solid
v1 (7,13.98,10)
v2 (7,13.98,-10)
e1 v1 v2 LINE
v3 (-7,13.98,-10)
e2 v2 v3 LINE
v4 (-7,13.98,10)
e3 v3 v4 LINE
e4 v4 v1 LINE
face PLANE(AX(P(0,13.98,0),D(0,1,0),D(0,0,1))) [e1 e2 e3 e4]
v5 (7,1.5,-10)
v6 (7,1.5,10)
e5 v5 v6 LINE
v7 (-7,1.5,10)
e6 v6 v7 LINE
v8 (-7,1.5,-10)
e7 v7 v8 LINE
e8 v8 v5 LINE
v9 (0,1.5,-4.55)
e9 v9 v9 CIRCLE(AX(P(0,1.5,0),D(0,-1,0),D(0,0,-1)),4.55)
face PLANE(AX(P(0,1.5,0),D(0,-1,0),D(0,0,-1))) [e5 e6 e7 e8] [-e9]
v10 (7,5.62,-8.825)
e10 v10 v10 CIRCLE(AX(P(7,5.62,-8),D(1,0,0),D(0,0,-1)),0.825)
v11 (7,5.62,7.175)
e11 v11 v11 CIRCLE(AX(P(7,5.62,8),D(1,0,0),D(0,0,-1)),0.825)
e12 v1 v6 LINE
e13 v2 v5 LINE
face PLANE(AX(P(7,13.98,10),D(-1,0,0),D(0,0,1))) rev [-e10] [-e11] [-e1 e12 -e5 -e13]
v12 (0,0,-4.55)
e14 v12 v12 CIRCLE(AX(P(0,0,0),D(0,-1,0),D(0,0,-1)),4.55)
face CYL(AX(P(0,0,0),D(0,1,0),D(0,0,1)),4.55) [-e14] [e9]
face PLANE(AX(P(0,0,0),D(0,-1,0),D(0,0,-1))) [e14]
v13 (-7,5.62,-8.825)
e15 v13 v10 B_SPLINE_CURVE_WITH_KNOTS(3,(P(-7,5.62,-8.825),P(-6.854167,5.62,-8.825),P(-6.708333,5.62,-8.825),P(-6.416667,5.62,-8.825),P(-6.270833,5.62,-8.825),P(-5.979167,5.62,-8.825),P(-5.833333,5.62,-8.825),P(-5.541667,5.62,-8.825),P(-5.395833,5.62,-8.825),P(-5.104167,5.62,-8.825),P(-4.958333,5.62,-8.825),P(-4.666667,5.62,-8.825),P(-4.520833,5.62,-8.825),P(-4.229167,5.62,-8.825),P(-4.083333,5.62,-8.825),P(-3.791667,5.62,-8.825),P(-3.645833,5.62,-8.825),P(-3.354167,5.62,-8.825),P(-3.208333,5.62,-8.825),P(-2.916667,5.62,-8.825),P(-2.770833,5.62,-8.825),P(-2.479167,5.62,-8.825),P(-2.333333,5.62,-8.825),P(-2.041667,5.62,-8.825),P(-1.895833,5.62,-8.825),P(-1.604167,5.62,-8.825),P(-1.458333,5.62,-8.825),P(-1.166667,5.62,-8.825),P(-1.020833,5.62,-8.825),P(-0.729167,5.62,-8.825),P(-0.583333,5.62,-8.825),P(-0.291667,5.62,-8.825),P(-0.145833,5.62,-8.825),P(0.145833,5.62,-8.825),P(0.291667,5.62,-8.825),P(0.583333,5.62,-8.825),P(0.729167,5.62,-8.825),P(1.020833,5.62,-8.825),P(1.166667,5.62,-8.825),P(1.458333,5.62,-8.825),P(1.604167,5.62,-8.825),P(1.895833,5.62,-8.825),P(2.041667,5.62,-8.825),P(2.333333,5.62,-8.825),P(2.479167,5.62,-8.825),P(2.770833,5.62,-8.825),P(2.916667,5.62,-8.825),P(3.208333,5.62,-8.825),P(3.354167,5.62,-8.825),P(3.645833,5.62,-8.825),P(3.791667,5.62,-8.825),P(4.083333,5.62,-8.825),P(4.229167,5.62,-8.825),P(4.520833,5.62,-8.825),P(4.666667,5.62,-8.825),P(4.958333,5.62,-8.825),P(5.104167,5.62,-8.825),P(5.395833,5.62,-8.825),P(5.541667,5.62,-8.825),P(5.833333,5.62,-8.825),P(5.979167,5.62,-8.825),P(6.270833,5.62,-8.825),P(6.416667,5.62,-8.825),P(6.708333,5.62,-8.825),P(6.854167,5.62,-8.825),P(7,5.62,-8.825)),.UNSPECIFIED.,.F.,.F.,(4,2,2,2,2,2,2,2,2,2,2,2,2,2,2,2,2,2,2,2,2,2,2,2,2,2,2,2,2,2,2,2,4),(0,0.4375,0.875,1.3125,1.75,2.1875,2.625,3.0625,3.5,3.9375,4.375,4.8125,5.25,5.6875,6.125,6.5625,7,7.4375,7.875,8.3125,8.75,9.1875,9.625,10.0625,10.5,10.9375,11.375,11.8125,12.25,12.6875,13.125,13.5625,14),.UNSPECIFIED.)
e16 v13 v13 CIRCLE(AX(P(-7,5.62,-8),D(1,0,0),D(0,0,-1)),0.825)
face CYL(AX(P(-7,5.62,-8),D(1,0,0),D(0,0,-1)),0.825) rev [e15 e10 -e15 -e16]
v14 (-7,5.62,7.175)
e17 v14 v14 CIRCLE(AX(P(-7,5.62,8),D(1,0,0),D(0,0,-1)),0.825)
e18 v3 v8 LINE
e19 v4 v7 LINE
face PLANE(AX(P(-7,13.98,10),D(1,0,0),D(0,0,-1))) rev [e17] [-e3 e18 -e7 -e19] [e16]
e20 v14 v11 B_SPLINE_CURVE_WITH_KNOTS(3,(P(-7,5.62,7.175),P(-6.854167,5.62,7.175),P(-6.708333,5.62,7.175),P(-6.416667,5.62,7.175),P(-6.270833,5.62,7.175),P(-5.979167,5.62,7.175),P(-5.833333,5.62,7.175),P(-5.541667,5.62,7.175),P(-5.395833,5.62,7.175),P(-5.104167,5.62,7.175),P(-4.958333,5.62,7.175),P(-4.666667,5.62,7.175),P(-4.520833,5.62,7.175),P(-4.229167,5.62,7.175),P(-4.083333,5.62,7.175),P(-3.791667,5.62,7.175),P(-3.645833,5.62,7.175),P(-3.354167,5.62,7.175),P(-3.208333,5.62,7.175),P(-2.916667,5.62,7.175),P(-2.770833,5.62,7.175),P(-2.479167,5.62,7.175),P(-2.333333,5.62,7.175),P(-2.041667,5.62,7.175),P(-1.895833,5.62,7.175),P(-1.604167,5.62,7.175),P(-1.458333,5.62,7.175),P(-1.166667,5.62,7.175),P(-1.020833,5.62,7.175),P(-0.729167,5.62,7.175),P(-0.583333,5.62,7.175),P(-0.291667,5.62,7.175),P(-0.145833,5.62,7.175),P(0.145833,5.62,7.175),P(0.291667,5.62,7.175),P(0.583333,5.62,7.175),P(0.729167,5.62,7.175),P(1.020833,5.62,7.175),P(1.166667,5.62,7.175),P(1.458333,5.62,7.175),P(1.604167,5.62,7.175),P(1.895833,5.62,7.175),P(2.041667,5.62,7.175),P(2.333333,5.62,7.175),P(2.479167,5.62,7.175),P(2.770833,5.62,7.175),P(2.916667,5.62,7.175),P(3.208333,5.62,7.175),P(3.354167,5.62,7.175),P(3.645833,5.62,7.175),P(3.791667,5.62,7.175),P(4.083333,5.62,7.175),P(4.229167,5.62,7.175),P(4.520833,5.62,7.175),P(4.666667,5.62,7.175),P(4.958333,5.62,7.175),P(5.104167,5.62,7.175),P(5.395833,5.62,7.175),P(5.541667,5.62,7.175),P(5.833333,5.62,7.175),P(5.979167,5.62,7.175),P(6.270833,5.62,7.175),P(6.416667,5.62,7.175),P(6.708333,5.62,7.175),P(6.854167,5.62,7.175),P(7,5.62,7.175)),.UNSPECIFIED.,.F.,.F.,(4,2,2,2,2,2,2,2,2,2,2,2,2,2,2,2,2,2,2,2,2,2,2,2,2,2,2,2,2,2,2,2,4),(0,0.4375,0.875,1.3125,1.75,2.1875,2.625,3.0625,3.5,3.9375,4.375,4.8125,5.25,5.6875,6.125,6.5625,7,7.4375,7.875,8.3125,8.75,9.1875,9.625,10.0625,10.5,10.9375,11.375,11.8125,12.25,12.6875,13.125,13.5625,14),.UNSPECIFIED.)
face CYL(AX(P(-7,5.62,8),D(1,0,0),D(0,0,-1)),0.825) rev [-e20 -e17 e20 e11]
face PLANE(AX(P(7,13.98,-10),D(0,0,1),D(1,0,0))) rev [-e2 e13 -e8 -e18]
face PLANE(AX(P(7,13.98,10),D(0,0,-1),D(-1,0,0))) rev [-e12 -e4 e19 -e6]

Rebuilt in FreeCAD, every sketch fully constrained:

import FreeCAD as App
import Part
import Sketcher
from FreeCAD import Vector


def add_polygon(sketch, points):
    """Adds a closed chain of lines whose ends are joined by coincident constraints."""
    first, n = sketch.GeometryCount, len(points)
    for a, b in zip(points, points[1:] + points[:1]):
        sketch.addGeometry(Part.LineSegment(App.Vector(*a, 0), App.Vector(*b, 0)), False)
    for i in range(n):
        sketch.addConstraint(Sketcher.Constraint("Coincident", first + i, 2, first + (i + 1) % n, 1))

doc = App.newDocument("Part")
params = doc.addObject("Spreadsheet::Sheet", "Params")
for row, (alias, value) in enumerate([
    ("sketch1_width", "14 mm"),
    ("sketch1_height", "20 mm"),
    ("pad1_length", "13.98 mm"),
    ("sketch2_diameter", "1.65 mm"),
    ("sketch3_width", "14 mm"),
    ("sketch3_height", "20 mm"),
    ("pocket2_length", "1.5 mm"),
    ("sketch4_diameter", "9.1 mm"),
    ("pad2_length", "1.5 mm"),
], start=1):
    params.set(f"A{row}", alias)
    params.set(f"B{row}", "=" + value)
    params.setAlias(f"B{row}", alias)

body = doc.addObject("PartDesign::Body", "Body")

sketch1 = body.newObject("Sketcher::SketchObject", "Sketch")
sketch1.AttachmentSupport = (doc.getObject("XZ_Plane"), [""])
sketch1.MapMode = "FlatFace"
add_polygon(sketch1, [(-7, -10), (-7, 10), (7, 10), (7, -10)])
sketch1.addConstraint([
    Sketcher.Constraint("Vertical", 0),
    Sketcher.Constraint("Horizontal", 1),
    Sketcher.Constraint("Vertical", 2),
    Sketcher.Constraint("Horizontal", 3),
    Sketcher.Constraint("Symmetric", 0, 2, 2, 2, -1, 1),
    Sketcher.Constraint("DistanceX", 1, 1, 1, 2, 14.0),
    Sketcher.Constraint("DistanceY", 0, 1, 0, 2, 20.0),
])
sketch1.setExpression("Constraints[9]", "Params.sketch1_width")
sketch1.setExpression("Constraints[10]", "Params.sketch1_height")
pad1 = body.newObject("PartDesign::Pad", "Pad")
pad1.Profile = sketch1
pad1.setExpression("Length", "Params.pad1_length")
pad1.Reversed = True

sketch2 = body.newObject("Sketcher::SketchObject", "Sketch001")
sketch2.AttachmentSupport = (doc.getObject("YZ_Plane"), [""])
sketch2.MapMode = "FlatFace"
sketch2.AttachmentOffset = App.Placement(Vector(0, 0, 7), App.Rotation())
sketch2.addGeometry([
    Part.Circle(Vector(5.62, -8, 0), Vector(0, 0, 1), 0.825),
    Part.Circle(Vector(5.62, 8, 0), Vector(0, 0, 1), 0.825),
], False)
sketch2.addConstraint([
    Sketcher.Constraint("Equal", 0, 1),
    Sketcher.Constraint("Symmetric", 0, 3, 1, 3, -1),
    Sketcher.Constraint("Diameter", 0, 1.65),
    Sketcher.Constraint("DistanceY", 0, 3, -1, 1, 8.0),
    Sketcher.Constraint("DistanceX", -1, 1, 0, 3, 5.62),
])
sketch2.setExpression("Constraints[2]", "Params.sketch2_diameter")
pocket1 = body.newObject("PartDesign::Pocket", "Pocket")
pocket1.Profile = sketch2
pocket1.Type = "ThroughAll"

sketch3 = body.newObject("Sketcher::SketchObject", "Sketch002")
sketch3.AttachmentSupport = (doc.getObject("XZ_Plane"), [""])
sketch3.MapMode = "FlatFace"
add_polygon(sketch3, [(-7, 10), (-7, -10), (7, -10), (7, 10)])
sketch3.addConstraint([
    Sketcher.Constraint("Vertical", 0),
    Sketcher.Constraint("Horizontal", 1),
    Sketcher.Constraint("Vertical", 2),
    Sketcher.Constraint("Horizontal", 3),
    Sketcher.Constraint("Symmetric", 0, 2, 2, 2, -1, 1),
    Sketcher.Constraint("DistanceX", 1, 1, 1, 2, 14.0),
    Sketcher.Constraint("DistanceY", 0, 2, 0, 1, 20.0),
])
sketch3.setExpression("Constraints[9]", "Params.sketch3_width")
sketch3.setExpression("Constraints[10]", "Params.sketch3_height")
pocket2 = body.newObject("PartDesign::Pocket", "Pocket001")
pocket2.Profile = sketch3
pocket2.setExpression("Length", "Params.pocket2_length")

sketch4 = body.newObject("Sketcher::SketchObject", "Sketch003")
sketch4.AttachmentSupport = (doc.getObject("XZ_Plane"), [""])
sketch4.MapMode = "FlatFace"
sketch4.AttachmentOffset = App.Placement(Vector(0, 0, -1.5), App.Rotation())
sketch4.addGeometry(Part.Circle(Vector(0, 0, 0), Vector(0, 0, 1), 4.55), False)
sketch4.addConstraint([
    Sketcher.Constraint("Coincident", 0, 3, -1, 1),
    Sketcher.Constraint("Diameter", 0, 9.1),
])
sketch4.setExpression("Constraints[1]", "Params.sketch4_diameter")
pad2 = body.newObject("PartDesign::Pad", "Pad001")
pad2.Profile = sketch4
pad2.setExpression("Length", "Params.pad2_length")

doc.recompute()
